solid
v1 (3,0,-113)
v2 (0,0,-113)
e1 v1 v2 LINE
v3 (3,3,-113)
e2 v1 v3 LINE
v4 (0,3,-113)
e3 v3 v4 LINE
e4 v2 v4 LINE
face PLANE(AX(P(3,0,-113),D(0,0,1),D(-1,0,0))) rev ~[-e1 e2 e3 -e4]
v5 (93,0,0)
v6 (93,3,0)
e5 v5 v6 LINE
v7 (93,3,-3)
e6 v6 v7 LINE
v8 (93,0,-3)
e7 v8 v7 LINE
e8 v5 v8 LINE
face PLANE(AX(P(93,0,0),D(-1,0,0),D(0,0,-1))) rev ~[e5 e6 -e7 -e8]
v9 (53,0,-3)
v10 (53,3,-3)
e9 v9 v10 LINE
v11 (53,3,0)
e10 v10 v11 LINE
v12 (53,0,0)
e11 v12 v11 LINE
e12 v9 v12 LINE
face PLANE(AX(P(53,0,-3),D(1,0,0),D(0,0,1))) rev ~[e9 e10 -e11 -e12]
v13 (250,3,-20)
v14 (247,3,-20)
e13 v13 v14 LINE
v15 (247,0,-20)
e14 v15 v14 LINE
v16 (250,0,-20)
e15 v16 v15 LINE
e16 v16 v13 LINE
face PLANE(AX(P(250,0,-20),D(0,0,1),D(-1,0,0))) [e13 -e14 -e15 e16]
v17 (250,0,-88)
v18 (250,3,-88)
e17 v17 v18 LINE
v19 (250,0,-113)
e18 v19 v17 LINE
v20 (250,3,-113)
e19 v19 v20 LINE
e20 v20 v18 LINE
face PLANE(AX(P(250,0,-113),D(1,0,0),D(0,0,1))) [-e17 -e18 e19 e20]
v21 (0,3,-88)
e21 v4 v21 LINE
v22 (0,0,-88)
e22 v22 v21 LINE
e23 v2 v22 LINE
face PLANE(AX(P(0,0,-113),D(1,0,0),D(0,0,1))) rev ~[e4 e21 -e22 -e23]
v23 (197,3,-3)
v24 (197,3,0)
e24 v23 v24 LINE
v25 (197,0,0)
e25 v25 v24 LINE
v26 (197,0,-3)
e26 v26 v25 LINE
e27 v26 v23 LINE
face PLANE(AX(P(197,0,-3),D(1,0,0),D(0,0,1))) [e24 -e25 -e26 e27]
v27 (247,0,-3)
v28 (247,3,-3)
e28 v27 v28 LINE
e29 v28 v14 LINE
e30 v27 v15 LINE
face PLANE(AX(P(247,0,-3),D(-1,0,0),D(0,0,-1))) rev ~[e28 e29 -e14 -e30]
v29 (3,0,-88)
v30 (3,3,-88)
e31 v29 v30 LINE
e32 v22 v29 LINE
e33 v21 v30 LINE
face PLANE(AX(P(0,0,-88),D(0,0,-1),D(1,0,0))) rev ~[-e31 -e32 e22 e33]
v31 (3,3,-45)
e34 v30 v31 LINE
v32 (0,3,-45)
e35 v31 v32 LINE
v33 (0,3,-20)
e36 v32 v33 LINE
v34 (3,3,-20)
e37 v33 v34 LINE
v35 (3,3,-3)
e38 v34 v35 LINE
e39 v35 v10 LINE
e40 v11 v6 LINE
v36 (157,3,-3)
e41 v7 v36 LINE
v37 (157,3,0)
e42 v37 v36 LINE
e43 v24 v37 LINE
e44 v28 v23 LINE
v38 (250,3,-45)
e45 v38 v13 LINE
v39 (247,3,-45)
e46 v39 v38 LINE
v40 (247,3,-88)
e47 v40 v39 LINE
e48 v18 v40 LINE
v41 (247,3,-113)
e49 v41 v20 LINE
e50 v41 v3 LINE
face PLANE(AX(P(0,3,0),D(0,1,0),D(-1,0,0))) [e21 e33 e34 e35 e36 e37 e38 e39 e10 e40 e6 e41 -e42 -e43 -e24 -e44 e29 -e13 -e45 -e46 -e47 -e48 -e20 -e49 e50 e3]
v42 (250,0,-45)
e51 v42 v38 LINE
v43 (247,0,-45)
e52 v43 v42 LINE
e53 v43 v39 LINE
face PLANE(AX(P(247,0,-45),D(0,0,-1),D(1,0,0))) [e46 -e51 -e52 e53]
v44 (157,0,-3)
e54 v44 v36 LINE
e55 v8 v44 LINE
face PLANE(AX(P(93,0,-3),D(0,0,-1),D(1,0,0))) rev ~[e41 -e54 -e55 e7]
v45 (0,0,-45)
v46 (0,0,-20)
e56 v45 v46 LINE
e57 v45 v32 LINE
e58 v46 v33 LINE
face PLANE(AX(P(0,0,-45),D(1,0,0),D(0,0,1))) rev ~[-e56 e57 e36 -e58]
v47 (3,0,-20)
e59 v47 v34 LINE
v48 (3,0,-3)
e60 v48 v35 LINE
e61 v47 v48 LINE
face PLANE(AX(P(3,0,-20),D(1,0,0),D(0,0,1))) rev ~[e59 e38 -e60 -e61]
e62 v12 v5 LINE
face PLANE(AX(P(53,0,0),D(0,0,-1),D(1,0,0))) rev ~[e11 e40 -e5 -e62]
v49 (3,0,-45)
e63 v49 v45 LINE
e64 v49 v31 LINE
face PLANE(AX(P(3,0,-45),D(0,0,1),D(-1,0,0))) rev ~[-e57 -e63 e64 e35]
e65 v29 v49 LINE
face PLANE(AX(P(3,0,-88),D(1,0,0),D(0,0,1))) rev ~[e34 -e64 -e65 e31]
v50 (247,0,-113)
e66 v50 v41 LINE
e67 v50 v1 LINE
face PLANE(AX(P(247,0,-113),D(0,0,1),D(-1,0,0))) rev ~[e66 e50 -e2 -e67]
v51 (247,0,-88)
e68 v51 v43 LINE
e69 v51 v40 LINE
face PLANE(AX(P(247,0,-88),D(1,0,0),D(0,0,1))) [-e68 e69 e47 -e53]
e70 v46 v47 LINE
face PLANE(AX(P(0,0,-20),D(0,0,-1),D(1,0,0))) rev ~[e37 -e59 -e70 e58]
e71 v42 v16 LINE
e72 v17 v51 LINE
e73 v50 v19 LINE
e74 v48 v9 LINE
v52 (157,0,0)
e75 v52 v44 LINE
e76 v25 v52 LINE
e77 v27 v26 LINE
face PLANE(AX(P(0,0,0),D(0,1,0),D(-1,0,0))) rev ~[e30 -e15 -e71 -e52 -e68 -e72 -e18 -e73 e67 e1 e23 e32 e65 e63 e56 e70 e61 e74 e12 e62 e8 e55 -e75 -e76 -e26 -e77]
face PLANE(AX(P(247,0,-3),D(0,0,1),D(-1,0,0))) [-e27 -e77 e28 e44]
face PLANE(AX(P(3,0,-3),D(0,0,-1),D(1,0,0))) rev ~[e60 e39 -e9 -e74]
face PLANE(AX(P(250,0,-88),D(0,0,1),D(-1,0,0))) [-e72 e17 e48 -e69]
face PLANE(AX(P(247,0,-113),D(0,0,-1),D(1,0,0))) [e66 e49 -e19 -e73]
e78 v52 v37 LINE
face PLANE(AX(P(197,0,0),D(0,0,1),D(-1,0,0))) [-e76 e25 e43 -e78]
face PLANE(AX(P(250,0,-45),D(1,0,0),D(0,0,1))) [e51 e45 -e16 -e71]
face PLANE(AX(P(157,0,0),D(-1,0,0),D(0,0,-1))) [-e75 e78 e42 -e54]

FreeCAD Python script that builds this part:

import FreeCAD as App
import Part
import Sketcher
Q = App.Units.Quantity


def add_polygon(sketch, points):
    """Adds a closed chain of lines whose ends are joined by coincident constraints."""
    first, n = sketch.GeometryCount, len(points)
    for a, b in zip(points, points[1:] + points[:1]):
        sketch.addGeometry(Part.LineSegment(App.Vector(*a, 0), App.Vector(*b, 0)), False)
    for i in range(n):
        sketch.addConstraint(Sketcher.Constraint("Coincident", first + i, 2, first + (i + 1) % n, 1))

doc = App.newDocument("Part")
body = doc.addObject("PartDesign::Body", "Body")

# Sketch on XZ plane
sketch1 = body.newObject("Sketcher::SketchObject", "Sketch")
sketch1.AttachmentSupport = (doc.getObject("XZ_Plane"), [""])
sketch1.MapMode = "FlatFace"
add_polygon(sketch1, [(250, -113), (0, -113), (0, -88), (3, -88), (3, -45), (0, -45), (0, -20), (3, -20), (3, -3), (53, -3), (53, 0), (93, 0), (93, -3), (157, -3), (157, 0), (197, 0), (197, -3), (247, -3), (247, -20), (250, -20), (250, -45), (247, -45), (247, -88), (250, -88)])  # lines 0-23
sketch1.addConstraint(Sketcher.Constraint("Horizontal", 0))
sketch1.addConstraint(Sketcher.Constraint("Vertical", 1))
sketch1.addConstraint(Sketcher.Constraint("Horizontal", 2))
sketch1.addConstraint(Sketcher.Constraint("Vertical", 3))
sketch1.addConstraint(Sketcher.Constraint("Horizontal", 4))
sketch1.addConstraint(Sketcher.Constraint("Vertical", 5))
sketch1.addConstraint(Sketcher.Constraint("Horizontal", 6))
sketch1.addConstraint(Sketcher.Constraint("Vertical", 7))
sketch1.addConstraint(Sketcher.Constraint("Horizontal", 8))
sketch1.addConstraint(Sketcher.Constraint("Vertical", 9))
sketch1.addConstraint(Sketcher.Constraint("Horizontal", 10))
sketch1.addConstraint(Sketcher.Constraint("Vertical", 11))
sketch1.addConstraint(Sketcher.Constraint("Horizontal", 12))
sketch1.addConstraint(Sketcher.Constraint("Vertical", 13))
sketch1.addConstraint(Sketcher.Constraint("Horizontal", 14))
sketch1.addConstraint(Sketcher.Constraint("Vertical", 15))
sketch1.addConstraint(Sketcher.Constraint("Horizontal", 16))
sketch1.addConstraint(Sketcher.Constraint("Vertical", 17))
sketch1.addConstraint(Sketcher.Constraint("Horizontal", 18))
sketch1.addConstraint(Sketcher.Constraint("Vertical", 19))
sketch1.addConstraint(Sketcher.Constraint("Horizontal", 20))
sketch1.addConstraint(Sketcher.Constraint("Vertical", 21))
sketch1.addConstraint(Sketcher.Constraint("Horizontal", 22))
sketch1.addConstraint(Sketcher.Constraint("Vertical", 23))
sketch1.addConstraint(Sketcher.Constraint("PointOnObject", 0, 2, -2))
sketch1.addConstraint(Sketcher.Constraint("PointOnObject", 4, 2, -2))
sketch1.addConstraint(Sketcher.Constraint("PointOnObject", 9, 2, -1))
sketch1.addConstraint(Sketcher.Constraint("PointOnObject", 13, 2, -1))
sketch1.addConstraint(Sketcher.Constraint("Horizontal", 8, 2, 11, 2))
sketch1.addConstraint(Sketcher.Constraint("Horizontal", 12, 2, 15, 2))
sketch1.addConstraint(Sketcher.Constraint("Horizontal", 6, 2, 17, 2))
sketch1.addConstraint(Sketcher.Constraint("Horizontal", 4, 2, 19, 2))
sketch1.addConstraint(Sketcher.Constraint("Horizontal", 2, 2, 21, 2))
sketch1.addConstraint(Sketcher.Constraint("Vertical", 3, 2, 6, 2))
sketch1.addConstraint(Sketcher.Constraint("Vertical", 17, 2, 20, 2))
sketch1.addConstraint(Sketcher.Constraint("Vertical", 19, 2, 22, 2))
sketch1.addConstraint(Sketcher.Constraint("Equal", 10, 14))
sketch1.addConstraint(Sketcher.Constraint("Equal", 8, 16))
sketch1.addConstraint(Sketcher.Constraint("Equal", 6, 18))
sketch1.addConstraint(Sketcher.Constraint("Equal", 1, 5))
sketch1.addConstraint(Sketcher.Constraint("Equal", 22, 9))
sketch1.addConstraint(Sketcher.Constraint("DistanceX", 2, 1, 2, 2, Q("3 mm")))
sketch1.addConstraint(Sketcher.Constraint("DistanceX", 8, 1, 8, 2, Q("50 mm")))
sketch1.addConstraint(Sketcher.Constraint("DistanceX", 10, 1, 10, 2, Q("40 mm")))
sketch1.addConstraint(Sketcher.Constraint("DistanceY", 1, 1, 1, 2, Q("25 mm")))
sketch1.addConstraint(Sketcher.Constraint("DistanceY", 3, 1, 3, 2, Q("43 mm")))
sketch1.addConstraint(Sketcher.Constraint("DistanceX", 0, 2, 0, 1, Q("250 mm")))
sketch1.addConstraint(Sketcher.Constraint("DistanceY", 7, 1, 7, 2, Q("17 mm")))
pad1 = body.newObject("PartDesign::Pad", "Pad")
pad1.Profile = sketch1
pad1.Length = 3
pad1.Reversed = True

doc.recompute()
